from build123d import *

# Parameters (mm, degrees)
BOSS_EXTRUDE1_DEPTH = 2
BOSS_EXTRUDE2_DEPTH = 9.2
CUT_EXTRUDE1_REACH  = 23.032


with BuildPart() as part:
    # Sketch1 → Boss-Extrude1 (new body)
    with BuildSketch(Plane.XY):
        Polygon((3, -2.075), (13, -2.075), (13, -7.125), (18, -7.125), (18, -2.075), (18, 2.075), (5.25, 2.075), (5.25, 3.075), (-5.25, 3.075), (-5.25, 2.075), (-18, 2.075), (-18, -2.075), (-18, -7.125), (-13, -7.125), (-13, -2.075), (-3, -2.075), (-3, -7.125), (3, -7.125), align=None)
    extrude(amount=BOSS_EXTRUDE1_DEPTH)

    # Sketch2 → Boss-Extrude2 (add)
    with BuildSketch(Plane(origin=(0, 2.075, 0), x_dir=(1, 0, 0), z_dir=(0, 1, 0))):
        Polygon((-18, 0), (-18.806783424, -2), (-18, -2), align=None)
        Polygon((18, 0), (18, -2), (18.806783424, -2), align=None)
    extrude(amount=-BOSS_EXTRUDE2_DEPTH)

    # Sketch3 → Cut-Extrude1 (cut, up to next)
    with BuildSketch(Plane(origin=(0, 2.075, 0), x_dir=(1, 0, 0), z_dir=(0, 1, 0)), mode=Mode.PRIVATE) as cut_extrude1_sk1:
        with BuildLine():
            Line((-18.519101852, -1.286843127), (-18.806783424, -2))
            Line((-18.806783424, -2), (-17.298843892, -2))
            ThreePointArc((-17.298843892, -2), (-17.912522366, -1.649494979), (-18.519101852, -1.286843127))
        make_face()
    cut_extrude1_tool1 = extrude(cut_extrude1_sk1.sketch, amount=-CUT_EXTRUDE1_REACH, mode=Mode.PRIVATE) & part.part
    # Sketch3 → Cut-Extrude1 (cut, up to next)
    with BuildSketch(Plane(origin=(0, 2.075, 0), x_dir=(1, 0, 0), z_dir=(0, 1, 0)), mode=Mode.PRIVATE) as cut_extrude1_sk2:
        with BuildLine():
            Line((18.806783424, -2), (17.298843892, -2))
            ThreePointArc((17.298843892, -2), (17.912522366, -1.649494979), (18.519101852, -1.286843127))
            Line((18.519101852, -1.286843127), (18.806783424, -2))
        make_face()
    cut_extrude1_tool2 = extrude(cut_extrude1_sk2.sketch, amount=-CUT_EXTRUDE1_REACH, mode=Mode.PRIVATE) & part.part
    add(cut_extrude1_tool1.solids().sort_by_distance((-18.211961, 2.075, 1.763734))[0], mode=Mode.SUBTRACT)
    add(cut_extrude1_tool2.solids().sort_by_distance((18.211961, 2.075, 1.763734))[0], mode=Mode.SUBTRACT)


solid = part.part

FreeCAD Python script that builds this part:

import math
import FreeCAD as App
import Part
import Sketcher

V = App.Vector

doc = App.newDocument("Part")
body = doc.addObject("PartDesign::Body", "Body")

# Sketch on XY plane
sketch1 = doc.addObject("Sketcher::SketchObject", "Sketch")
body.addObject(sketch1)
sketch1.AttachmentSupport = (doc.XY_Plane, [""])
sketch1.MapMode = "FlatFace"
sketch1.addGeometry([
    Part.LineSegment(V(3, -2.1, 0), V(13, -2.1, 0)),  # 0
    Part.LineSegment(V(13, -2.1, 0), V(13, -7.1, 0)),  # 1
    Part.LineSegment(V(13, -7.1, 0), V(18, -7.1, 0)),  # 2
    Part.LineSegment(V(18, -7.1, 0), V(18, 2.1, 0)),  # 3
    Part.LineSegment(V(18, 2.1, 0), V(5.2, 2.1, 0)),  # 4
    Part.LineSegment(V(5.2, 2.1, 0), V(5.2, 3.1, 0)),  # 5
    Part.LineSegment(V(5.2, 3.1, 0), V(-5.2, 3.1, 0)),  # 6
    Part.LineSegment(V(-5.2, 3.1, 0), V(-5.2, 2.1, 0)),  # 7
    Part.LineSegment(V(-5.2, 2.1, 0), V(-18, 2.1, 0)),  # 8
    Part.LineSegment(V(-18, 2.1, 0), V(-18, -7.1, 0)),  # 9
    Part.LineSegment(V(-18, -7.1, 0), V(-13, -7.1, 0)),  # 10
    Part.LineSegment(V(-13, -7.1, 0), V(-13, -2.1, 0)),  # 11
    Part.LineSegment(V(-13, -2.1, 0), V(-3, -2.1, 0)),  # 12
    Part.LineSegment(V(-3, -2.1, 0), V(-3, -7.1, 0)),  # 13
    Part.LineSegment(V(-3, -7.1, 0), V(3, -7.1, 0)),  # 14
    Part.LineSegment(V(3, -7.1, 0), V(3, -2.1, 0)),  # 15
], False)
sketch1.addConstraint([
    Sketcher.Constraint("Coincident", 0, 2, 1, 1),
    Sketcher.Constraint("Coincident", 1, 2, 2, 1),
    Sketcher.Constraint("Coincident", 2, 2, 3, 1),
    Sketcher.Constraint("Coincident", 3, 2, 4, 1),
    Sketcher.Constraint("Coincident", 4, 2, 5, 1),
    Sketcher.Constraint("Coincident", 5, 2, 6, 1),
    Sketcher.Constraint("Coincident", 6, 2, 7, 1),
    Sketcher.Constraint("Coincident", 7, 2, 8, 1),
    Sketcher.Constraint("Coincident", 8, 2, 9, 1),
    Sketcher.Constraint("Coincident", 9, 2, 10, 1),
    Sketcher.Constraint("Coincident", 10, 2, 11, 1),
    Sketcher.Constraint("Coincident", 11, 2, 12, 1),
    Sketcher.Constraint("Coincident", 12, 2, 13, 1),
    Sketcher.Constraint("Coincident", 13, 2, 14, 1),
    Sketcher.Constraint("Coincident", 14, 2, 15, 1),
    Sketcher.Constraint("Coincident", 15, 2, 0, 1),
    Sketcher.Constraint("Horizontal", 0),
    Sketcher.Constraint("Vertical", 1),
    Sketcher.Constraint("Horizontal", 2),
    Sketcher.Constraint("Vertical", 3),
    Sketcher.Constraint("Horizontal", 4),
    Sketcher.Constraint("Vertical", 5),
    Sketcher.Constraint("Horizontal", 6),
    Sketcher.Constraint("Vertical", 7),
    Sketcher.Constraint("Horizontal", 8),
    Sketcher.Constraint("Vertical", 9),
    Sketcher.Constraint("Horizontal", 10),
    Sketcher.Constraint("Vertical", 11),
    Sketcher.Constraint("Horizontal", 12),
    Sketcher.Constraint("Vertical", 13),
    Sketcher.Constraint("Horizontal", 14),
    Sketcher.Constraint("Vertical", 15),
    Sketcher.Constraint("Symmetric", 4, 2, 7, 2, -2),
    Sketcher.Constraint("Symmetric", 2, 2, 9, 2, -2),
    Sketcher.Constraint("Symmetric", 0, 2, 11, 2, -2),
    Sketcher.Constraint("Horizontal", 10, 2, 13, 2),
    Sketcher.Constraint("Equal", 0, 12),
    Sketcher.Constraint("DistanceX", 0, 1, 0, 2, 10.0),
    Sketcher.Constraint("DistanceX", 2, 1, 2, 2, 5.0),
    Sketcher.Constraint("DistanceX", 14, 1, 14, 2, 6.0),
    Sketcher.Constraint("DistanceY", 5, 1, 5, 2, 1.0),
    Sketcher.Constraint("DistanceX", 6, 2, 6, 1, 10.5),
    Sketcher.Constraint("DistanceY", 3, 1, 3, 2, 9.2),
    Sketcher.Constraint("DistanceY", 1, 2, 1, 1, 5.05),
    Sketcher.Constraint("DistanceY", 0, 2, -1, 1, 2.075),
])
pad1 = doc.addObject("PartDesign::Pad", "Pad")
body.addObject(pad1)
pad1.Profile = sketch1
pad1.Length = 2

# Sketch on XZ plane
sketch2 = doc.addObject("Sketcher::SketchObject", "Sketch001")
body.addObject(sketch2)
sketch2.AttachmentSupport = (doc.XZ_Plane, [""])
sketch2.MapMode = "FlatFace"
sketch2.AttachmentOffset = App.Placement(V(0, 0, -2.075), App.Rotation())
sketch2.addGeometry([
    Part.LineSegment(V(-18, 0, 0), V(-18.8, 2, 0)),  # 0
    Part.LineSegment(V(-18.8, 2, 0), V(-18, 2, 0)),  # 1
    Part.LineSegment(V(-18, 2, 0), V(-18, 0, 0)),  # 2
    Part.LineSegment(V(18, 0, 0), V(18, 2, 0)),  # 3
    Part.LineSegment(V(18, 2, 0), V(18.8, 2, 0)),  # 4
    Part.LineSegment(V(18.8, 2, 0), V(18, 0, 0)),  # 5
], False)
sketch2.addConstraint([
    Sketcher.Constraint("Coincident", 0, 2, 1, 1),
    Sketcher.Constraint("Coincident", 1, 2, 2, 1),
    Sketcher.Constraint("Coincident", 2, 2, 0, 1),
    Sketcher.Constraint("Coincident", 3, 2, 4, 1),
    Sketcher.Constraint("Coincident", 4, 2, 5, 1),
    Sketcher.Constraint("Coincident", 5, 2, 3, 1),
    Sketcher.Constraint("Horizontal", 1),
    Sketcher.Constraint("Vertical", 2),
    Sketcher.Constraint("Vertical", 3),
    Sketcher.Constraint("Horizontal", 4),
    Sketcher.Constraint("Symmetric", 2, 2, 5, 2, -1, 1),
    Sketcher.Constraint("Symmetric", 0, 2, 4, 2, -2),
    Sketcher.Constraint("PointOnObject", 2, 2, -1),
    Sketcher.Constraint("DistanceY", 2, 2, 2, 1, 2.0),
    Sketcher.Constraint("DistanceX", 1, 2, -1, 1, 18.0),
    Sketcher.Constraint("DistanceX", 1, 1, 1, 2, 0.806783),
])
pad2 = doc.addObject("PartDesign::Pad", "Pad001")
body.addObject(pad2)
pad2.Profile = sketch2
pad2.Length = 9.2

# Sketch on XZ plane
sketch3 = doc.addObject("Sketcher::SketchObject", "Sketch002")
body.addObject(sketch3)
sketch3.AttachmentSupport = (doc.XZ_Plane, [""])
sketch3.MapMode = "FlatFace"
sketch3.AttachmentOffset = App.Placement(V(0, 0, -2.075), App.Rotation())
sketch3.addGeometry([
    Part.LineSegment(V(-18.5, 1.3, 0), V(-18.8, 2, 0)),
    Part.LineSegment(V(-18.8, 2, 0), V(-17.3, 2, 0)),
    Part.ArcOfCircle(Part.Circle(V(0, -29, 0), V(0, 0, 1), 35.5), math.radians(119.16), math.radians(121.44)),
], False)
sketch3.addConstraint([
    Sketcher.Constraint("Coincident", 0, 2, 1, 1),
    Sketcher.Constraint("Coincident", 1, 2, 2, 1),
    Sketcher.Constraint("Coincident", 2, 2, 0, 1),
    Sketcher.Constraint("Horizontal", 1),
    Sketcher.Constraint("PointOnObject", 2, 3, -2),
    Sketcher.Constraint("Radius", 2, 35.500002),
    Sketcher.Constraint("DistanceY", 2, 3, -1, 1, 29.000001),
    Sketcher.Constraint("DistanceY", -1, 1, 0, 2, 2.0),
    Sketcher.Constraint("DistanceX", 1, 1, 1, 2, 1.50794),
    Sketcher.Constraint("DistanceX", 2, 2, -1, 1, 18.519102),
])
pocket1 = doc.addObject("PartDesign::Pocket", "Pocket")
body.addObject(pocket1)
pocket1.Profile = sketch3
pocket1.Type = "UpToFirst"
pocket1.Reversed = True

# Sketch on XZ plane
sketch4 = doc.addObject("Sketcher::SketchObject", "Sketch003")
body.addObject(sketch4)
sketch4.AttachmentSupport = (doc.XZ_Plane, [""])
sketch4.MapMode = "FlatFace"
sketch4.AttachmentOffset = App.Placement(V(0, 0, -2.075), App.Rotation())
sketch4.addGeometry([
    Part.LineSegment(V(17.3, 2, 0), V(18.8, 2, 0)),
    Part.LineSegment(V(18.8, 2, 0), V(18.5, 1.3, 0)),
    Part.ArcOfCircle(Part.Circle(V(0, -29, 0), V(0, 0, 1), 35.5), math.radians(58.56), math.radians(60.84)),
], False)
sketch4.addConstraint([
    Sketcher.Constraint("Coincident", 0, 2, 1, 1),
    Sketcher.Constraint("Coincident", 1, 2, 2, 1),
    Sketcher.Constraint("Coincident", 2, 2, 0, 1),
    Sketcher.Constraint("Horizontal", 0),
    Sketcher.Constraint("PointOnObject", 2, 3, -2),
    Sketcher.Constraint("Radius", 2, 35.500002),
    Sketcher.Constraint("DistanceY", 2, 3, -1, 1, 29.000001),
    Sketcher.Constraint("DistanceY", -1, 1, 0, 2, 2.0),
    Sketcher.Constraint("DistanceX", 0, 1, 0, 2, 1.50794),
    Sketcher.Constraint("DistanceX", -1, 1, 1, 2, 18.519102),
])
pocket2 = doc.addObject("PartDesign::Pocket", "Pocket001")
body.addObject(pocket2)
pocket2.Profile = sketch4
pocket2.Type = "UpToFirst"
pocket2.Reversed = True

doc.recompute()
